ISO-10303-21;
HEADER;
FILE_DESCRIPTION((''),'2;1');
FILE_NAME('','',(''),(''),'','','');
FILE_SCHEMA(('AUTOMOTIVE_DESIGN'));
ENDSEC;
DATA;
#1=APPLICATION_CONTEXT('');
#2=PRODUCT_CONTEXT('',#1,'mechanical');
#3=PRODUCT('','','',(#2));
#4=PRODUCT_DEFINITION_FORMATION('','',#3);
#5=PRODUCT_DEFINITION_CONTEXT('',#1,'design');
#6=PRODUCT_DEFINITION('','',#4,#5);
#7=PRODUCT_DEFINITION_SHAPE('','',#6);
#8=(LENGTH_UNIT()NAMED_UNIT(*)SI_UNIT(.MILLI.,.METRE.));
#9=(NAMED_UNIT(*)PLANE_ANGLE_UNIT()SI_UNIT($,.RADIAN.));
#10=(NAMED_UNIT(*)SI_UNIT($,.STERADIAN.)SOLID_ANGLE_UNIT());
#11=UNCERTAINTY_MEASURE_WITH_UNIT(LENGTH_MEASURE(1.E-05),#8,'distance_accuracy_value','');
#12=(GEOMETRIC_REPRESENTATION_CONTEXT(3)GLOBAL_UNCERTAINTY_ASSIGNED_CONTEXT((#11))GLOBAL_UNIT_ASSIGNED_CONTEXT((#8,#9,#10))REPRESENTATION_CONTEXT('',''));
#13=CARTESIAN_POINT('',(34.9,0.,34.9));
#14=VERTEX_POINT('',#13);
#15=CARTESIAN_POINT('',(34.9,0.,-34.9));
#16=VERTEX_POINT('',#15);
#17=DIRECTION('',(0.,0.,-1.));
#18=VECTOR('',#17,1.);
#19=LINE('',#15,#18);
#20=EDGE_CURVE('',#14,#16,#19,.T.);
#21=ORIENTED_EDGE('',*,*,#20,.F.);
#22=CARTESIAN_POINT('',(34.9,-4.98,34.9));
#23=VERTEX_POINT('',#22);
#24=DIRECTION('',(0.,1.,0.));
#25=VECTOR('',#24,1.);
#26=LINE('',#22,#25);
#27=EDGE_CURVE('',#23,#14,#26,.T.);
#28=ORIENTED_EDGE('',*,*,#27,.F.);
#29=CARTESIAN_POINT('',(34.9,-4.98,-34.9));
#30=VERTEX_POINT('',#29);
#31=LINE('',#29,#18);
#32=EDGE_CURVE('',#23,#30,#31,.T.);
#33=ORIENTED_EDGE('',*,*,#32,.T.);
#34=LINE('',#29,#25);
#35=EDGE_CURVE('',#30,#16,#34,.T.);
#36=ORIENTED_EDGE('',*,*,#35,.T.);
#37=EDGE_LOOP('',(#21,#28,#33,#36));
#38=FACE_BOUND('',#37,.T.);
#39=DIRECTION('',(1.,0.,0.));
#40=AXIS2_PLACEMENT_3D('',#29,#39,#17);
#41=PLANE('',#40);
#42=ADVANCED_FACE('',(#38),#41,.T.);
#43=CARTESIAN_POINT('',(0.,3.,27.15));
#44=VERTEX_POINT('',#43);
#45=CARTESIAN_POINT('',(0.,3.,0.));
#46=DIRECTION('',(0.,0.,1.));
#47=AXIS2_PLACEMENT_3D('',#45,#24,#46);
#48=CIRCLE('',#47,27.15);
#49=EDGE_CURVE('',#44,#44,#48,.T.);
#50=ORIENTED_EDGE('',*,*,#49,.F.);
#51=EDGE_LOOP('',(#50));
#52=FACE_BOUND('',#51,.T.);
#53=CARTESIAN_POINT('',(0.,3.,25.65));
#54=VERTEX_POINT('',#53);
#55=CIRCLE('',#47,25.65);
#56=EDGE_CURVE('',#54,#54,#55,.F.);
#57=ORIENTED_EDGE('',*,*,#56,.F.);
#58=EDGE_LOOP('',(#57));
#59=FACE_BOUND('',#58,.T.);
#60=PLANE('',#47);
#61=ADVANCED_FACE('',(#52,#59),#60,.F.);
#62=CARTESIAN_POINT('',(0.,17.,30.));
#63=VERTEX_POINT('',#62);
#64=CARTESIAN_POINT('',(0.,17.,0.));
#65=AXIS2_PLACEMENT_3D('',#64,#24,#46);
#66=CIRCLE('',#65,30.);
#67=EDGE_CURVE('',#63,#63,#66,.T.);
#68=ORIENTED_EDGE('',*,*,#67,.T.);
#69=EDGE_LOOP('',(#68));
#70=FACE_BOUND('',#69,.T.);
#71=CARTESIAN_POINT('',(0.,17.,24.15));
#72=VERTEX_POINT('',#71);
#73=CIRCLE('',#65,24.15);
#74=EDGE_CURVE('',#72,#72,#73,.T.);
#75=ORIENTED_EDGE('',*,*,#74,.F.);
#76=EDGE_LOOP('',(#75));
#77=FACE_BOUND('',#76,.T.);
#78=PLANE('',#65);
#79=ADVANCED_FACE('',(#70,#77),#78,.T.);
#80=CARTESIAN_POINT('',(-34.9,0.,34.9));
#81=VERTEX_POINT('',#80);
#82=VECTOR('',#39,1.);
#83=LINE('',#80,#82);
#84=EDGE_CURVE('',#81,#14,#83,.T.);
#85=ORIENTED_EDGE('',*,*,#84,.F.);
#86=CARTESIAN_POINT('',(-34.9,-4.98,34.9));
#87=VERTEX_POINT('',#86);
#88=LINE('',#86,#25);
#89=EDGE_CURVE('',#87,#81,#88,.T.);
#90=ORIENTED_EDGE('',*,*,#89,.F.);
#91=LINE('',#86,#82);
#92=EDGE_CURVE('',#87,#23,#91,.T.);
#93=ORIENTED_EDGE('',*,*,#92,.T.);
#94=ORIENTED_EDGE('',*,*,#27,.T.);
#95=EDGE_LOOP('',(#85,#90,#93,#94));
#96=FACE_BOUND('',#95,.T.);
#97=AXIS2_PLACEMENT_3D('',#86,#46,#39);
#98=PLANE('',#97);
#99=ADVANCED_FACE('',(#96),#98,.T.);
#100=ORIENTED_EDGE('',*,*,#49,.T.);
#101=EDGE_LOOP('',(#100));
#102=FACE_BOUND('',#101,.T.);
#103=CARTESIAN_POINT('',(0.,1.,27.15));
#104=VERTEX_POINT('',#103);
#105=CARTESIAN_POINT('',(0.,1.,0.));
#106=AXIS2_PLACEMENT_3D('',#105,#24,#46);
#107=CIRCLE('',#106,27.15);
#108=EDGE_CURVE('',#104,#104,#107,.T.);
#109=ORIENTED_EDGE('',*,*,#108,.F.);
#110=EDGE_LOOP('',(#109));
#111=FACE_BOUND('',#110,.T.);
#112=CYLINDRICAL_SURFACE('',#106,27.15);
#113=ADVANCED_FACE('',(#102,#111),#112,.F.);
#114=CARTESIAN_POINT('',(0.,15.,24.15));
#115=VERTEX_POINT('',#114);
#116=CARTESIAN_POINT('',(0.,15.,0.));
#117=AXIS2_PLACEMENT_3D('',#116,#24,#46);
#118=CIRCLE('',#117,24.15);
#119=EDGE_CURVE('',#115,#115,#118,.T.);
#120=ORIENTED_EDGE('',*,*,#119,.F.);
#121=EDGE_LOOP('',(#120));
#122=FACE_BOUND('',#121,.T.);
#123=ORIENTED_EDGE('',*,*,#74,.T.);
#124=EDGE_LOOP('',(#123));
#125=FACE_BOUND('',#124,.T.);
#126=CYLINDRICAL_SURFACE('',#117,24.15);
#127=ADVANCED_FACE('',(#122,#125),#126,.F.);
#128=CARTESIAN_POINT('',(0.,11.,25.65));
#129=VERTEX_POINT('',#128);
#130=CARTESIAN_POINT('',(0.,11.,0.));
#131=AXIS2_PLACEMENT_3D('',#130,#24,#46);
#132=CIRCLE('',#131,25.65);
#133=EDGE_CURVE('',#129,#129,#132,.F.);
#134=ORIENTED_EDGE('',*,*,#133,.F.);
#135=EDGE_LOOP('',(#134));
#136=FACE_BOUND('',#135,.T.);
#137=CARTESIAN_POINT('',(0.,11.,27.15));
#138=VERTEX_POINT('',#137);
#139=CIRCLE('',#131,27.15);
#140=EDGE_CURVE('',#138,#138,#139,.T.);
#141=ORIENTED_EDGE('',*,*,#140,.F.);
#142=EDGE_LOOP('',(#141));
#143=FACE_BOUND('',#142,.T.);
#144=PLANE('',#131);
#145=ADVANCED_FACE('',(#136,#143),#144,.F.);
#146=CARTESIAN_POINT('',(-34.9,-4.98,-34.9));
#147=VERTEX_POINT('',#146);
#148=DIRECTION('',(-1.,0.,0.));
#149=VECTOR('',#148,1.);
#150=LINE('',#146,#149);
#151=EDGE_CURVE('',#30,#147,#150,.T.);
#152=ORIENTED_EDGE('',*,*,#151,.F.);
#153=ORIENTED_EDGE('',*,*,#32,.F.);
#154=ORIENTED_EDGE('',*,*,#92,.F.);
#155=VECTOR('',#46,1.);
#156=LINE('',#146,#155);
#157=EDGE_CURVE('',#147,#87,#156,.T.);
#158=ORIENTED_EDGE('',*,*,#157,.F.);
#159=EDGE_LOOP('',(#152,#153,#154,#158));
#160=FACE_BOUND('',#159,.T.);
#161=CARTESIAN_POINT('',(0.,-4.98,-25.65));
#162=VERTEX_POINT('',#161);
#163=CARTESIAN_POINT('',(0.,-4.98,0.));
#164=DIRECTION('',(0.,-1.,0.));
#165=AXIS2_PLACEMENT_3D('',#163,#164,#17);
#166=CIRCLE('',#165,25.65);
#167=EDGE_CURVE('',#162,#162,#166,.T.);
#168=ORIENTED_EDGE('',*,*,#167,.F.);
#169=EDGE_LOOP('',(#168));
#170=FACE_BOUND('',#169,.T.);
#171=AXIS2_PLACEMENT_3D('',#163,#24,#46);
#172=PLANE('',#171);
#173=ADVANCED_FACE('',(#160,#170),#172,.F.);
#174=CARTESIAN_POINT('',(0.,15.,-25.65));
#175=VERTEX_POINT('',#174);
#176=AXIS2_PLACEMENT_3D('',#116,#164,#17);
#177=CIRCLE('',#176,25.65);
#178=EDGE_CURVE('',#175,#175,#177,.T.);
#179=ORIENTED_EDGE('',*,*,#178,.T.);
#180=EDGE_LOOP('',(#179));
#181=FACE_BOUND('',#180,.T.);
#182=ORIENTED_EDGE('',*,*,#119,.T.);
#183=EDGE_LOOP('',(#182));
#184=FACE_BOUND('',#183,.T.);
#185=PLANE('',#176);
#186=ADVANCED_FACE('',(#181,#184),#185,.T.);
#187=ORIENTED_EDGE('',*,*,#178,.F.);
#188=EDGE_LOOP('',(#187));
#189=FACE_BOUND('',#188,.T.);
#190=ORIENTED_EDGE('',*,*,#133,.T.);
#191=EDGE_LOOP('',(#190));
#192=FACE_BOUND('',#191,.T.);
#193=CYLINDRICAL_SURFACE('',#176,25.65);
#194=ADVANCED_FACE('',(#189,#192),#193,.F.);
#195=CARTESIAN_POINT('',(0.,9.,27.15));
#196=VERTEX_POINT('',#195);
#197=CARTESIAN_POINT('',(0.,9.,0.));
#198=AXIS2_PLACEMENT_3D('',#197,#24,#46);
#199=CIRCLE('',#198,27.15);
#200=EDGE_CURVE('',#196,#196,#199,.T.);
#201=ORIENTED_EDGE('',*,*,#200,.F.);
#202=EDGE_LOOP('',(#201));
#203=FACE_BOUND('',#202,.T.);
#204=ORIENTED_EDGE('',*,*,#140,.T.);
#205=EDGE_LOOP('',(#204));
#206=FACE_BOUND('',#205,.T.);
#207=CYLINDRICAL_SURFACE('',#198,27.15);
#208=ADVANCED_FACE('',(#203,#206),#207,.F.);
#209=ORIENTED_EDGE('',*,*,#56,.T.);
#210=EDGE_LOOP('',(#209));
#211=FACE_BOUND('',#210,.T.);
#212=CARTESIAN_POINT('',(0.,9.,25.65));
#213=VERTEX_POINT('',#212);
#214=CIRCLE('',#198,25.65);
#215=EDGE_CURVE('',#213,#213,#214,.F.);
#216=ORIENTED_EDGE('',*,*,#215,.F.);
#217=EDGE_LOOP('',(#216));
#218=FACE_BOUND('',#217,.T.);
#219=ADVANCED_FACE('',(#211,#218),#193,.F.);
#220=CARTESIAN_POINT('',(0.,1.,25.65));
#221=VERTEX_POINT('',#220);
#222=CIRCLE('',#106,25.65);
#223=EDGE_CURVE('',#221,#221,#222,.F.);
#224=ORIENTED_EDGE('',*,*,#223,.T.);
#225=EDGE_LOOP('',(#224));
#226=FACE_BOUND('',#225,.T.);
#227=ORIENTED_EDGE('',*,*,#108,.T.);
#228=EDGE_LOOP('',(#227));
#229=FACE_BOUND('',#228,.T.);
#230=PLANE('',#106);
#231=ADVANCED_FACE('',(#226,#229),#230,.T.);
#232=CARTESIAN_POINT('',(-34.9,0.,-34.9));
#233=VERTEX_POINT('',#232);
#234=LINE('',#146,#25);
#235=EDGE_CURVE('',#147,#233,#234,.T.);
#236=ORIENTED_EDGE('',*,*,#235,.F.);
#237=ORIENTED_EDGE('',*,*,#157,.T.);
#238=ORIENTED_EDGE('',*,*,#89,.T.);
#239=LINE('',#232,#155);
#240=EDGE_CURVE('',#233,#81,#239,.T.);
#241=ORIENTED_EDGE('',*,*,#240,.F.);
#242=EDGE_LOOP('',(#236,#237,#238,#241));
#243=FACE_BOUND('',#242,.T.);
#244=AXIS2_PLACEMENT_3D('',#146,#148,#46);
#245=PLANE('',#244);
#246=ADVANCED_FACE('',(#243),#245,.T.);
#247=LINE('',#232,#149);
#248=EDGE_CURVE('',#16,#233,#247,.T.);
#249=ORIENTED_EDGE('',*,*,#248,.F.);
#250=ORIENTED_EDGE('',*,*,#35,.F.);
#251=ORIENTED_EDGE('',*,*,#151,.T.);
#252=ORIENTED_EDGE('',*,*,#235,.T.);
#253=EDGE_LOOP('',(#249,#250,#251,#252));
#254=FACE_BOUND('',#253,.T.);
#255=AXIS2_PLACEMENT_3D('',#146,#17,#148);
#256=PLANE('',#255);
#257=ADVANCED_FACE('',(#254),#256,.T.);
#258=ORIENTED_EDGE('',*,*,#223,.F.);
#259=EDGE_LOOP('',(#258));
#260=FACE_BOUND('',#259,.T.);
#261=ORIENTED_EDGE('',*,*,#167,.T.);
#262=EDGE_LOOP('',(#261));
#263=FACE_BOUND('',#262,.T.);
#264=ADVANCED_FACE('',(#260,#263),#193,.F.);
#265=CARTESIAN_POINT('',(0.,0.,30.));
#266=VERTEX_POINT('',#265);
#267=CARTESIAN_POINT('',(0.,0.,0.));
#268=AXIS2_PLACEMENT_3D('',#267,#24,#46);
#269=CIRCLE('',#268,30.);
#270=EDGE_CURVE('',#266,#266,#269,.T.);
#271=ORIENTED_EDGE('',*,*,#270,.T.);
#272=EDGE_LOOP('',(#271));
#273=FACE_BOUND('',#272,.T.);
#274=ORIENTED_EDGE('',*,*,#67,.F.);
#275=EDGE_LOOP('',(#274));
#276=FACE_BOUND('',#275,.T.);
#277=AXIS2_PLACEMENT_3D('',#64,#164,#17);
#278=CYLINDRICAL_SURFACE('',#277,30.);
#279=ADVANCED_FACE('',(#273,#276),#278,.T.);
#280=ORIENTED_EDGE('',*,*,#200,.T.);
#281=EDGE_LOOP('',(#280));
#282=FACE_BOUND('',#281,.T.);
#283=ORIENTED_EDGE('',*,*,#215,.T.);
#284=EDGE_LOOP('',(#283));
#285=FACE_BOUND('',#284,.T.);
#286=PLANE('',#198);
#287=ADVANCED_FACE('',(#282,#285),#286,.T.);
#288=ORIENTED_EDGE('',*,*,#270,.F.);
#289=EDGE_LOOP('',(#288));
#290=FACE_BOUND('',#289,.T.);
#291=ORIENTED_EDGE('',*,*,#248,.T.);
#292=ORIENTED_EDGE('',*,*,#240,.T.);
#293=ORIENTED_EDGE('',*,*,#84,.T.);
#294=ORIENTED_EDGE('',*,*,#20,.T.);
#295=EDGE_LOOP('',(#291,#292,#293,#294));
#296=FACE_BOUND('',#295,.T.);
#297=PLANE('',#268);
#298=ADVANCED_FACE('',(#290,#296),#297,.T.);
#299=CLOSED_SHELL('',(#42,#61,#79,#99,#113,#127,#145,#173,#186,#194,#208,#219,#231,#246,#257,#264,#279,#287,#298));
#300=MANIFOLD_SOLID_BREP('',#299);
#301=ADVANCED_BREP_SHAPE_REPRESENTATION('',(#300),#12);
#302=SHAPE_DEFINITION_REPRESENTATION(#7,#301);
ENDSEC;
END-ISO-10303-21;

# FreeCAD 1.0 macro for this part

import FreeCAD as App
import Part
import Sketcher

V = App.Vector
Q = App.Units.Quantity

doc = App.newDocument("Part")
body = doc.addObject("PartDesign::Body", "Body")

# Sketch on XZ plane
sketch1 = body.newObject("Sketcher::SketchObject", "Sketch")
sketch1.AttachmentSupport = (doc.getObject("XZ_Plane"), [""])
sketch1.MapMode = "FlatFace"
sketch1.addGeometry(Part.LineSegment(V(-35, -35, 0), V(-35, 35, 0)), False)
sketch1.addGeometry(Part.LineSegment(V(-35, 35, 0), V(35, 35, 0)), False)
sketch1.addGeometry(Part.LineSegment(V(35, 35, 0), V(35, -35, 0)), False)
sketch1.addGeometry(Part.LineSegment(V(35, -35, 0), V(-35, -35, 0)), False)
sketch1.addConstraint(Sketcher.Constraint("Coincident", 0, 2, 1, 1))
sketch1.addConstraint(Sketcher.Constraint("Coincident", 1, 2, 2, 1))
sketch1.addConstraint(Sketcher.Constraint("Coincident", 2, 2, 3, 1))
sketch1.addConstraint(Sketcher.Constraint("Coincident", 3, 2, 0, 1))
sketch1.addConstraint(Sketcher.Constraint("Vertical", 0))
sketch1.addConstraint(Sketcher.Constraint("Horizontal", 1))
sketch1.addConstraint(Sketcher.Constraint("Vertical", 2))
sketch1.addConstraint(Sketcher.Constraint("Horizontal", 3))
sketch1.addConstraint(Sketcher.Constraint("Symmetric", 0, 2, 2, 2, -1, 1))
sketch1.addConstraint(Sketcher.Constraint("Equal", 3, 0))
sketch1.addConstraint(Sketcher.Constraint("DistanceX", 1, 1, 1, 2, Q("69.8 mm")))
pad1 = body.newObject("PartDesign::Pad", "Pad")
pad1.Profile = sketch1
pad1.Length = 4.98

# Sketch on XZ plane
sketch2 = body.newObject("Sketcher::SketchObject", "Sketch001")
sketch2.AttachmentSupport = (doc.getObject("XZ_Plane"), [""])
sketch2.MapMode = "FlatFace"
sketch2.addGeometry(Part.Circle(V(0, 0, 0), V(0, 0, 1), 30), False)
sketch2.addConstraint(Sketcher.Constraint("Coincident", 0, 3, -1, 1))
sketch2.addConstraint(Sketcher.Constraint("Diameter", 0, Q("60 mm")))
pad2 = body.newObject("PartDesign::Pad", "Pad001")
pad2.Profile = sketch2
pad2.Length = 17
pad2.Reversed = True

# Sketch on XZ plane
sketch3 = body.newObject("Sketcher::SketchObject", "Sketch002")
sketch3.AttachmentSupport = (doc.getObject("XZ_Plane"), [""])
sketch3.MapMode = "FlatFace"
sketch3.AttachmentOffset = App.Placement(V(0, 0, 4.98), App.Rotation())
sketch3.addGeometry(Part.Circle(V(0, 0, 0), V(0, 0, 1), 26), False)
sketch3.addConstraint(Sketcher.Constraint("Coincident", 0, 3, -1, 1))
sketch3.addConstraint(Sketcher.Constraint("Diameter", 0, Q("51.3 mm")))
pocket1 = body.newObject("PartDesign::Pocket", "Pocket")
pocket1.Profile = sketch3
pocket1.Length = 19.98

# Sketch on XZ plane
sketch4 = body.newObject("Sketcher::SketchObject", "Sketch003")
sketch4.AttachmentSupport = (doc.getObject("XZ_Plane"), [""])
sketch4.MapMode = "FlatFace"
sketch4.AttachmentOffset = App.Placement(V(0, 0, -17), App.Rotation())
sketch4.addGeometry(Part.Circle(V(0, 0, 0), V(0, 0, 1), 24), False)
sketch4.addConstraint(Sketcher.Constraint("Coincident", 0, 3, -1, 1))
sketch4.addConstraint(Sketcher.Constraint("Diameter", 0, Q("48.3 mm")))
pocket2 = body.newObject("PartDesign::Pocket", "Pocket001")
pocket2.Profile = sketch4
pocket2.Length = 2
pocket2.Reversed = True

# Sketch on XZ plane
sketch5 = body.newObject("Sketcher::SketchObject", "Sketch004")
sketch5.AttachmentSupport = (doc.getObject("XZ_Plane"), [""])
sketch5.MapMode = "FlatFace"
sketch5.AttachmentOffset = App.Placement(V(0, 0, -11), App.Rotation())
sketch5.addGeometry(Part.Circle(V(0, 0, 0), V(0, 0, 1), 27), False)
sketch5.addConstraint(Sketcher.Constraint("Coincident", 0, 3, -1, 1))
sketch5.addConstraint(Sketcher.Constraint("Diameter", 0, Q("54.3 mm")))
pocket3 = body.newObject("PartDesign::Pocket", "Pocket002")
pocket3.Profile = sketch5
pocket3.Length = 2
pocket3.Reversed = True

# Sketch on XZ plane
sketch6 = body.newObject("Sketcher::SketchObject", "Sketch005")
sketch6.AttachmentSupport = (doc.getObject("XZ_Plane"), [""])
sketch6.MapMode = "FlatFace"
sketch6.AttachmentOffset = App.Placement(V(0, 0, -3), App.Rotation())
sketch6.addGeometry(Part.Circle(V(0, 0, 0), V(0, 0, 1), 27), False)
sketch6.addConstraint(Sketcher.Constraint("Coincident", 0, 3, -1, 1))
sketch6.addConstraint(Sketcher.Constraint("Diameter", 0, Q("54.3 mm")))
pocket4 = body.newObject("PartDesign::Pocket", "Pocket003")
pocket4.Profile = sketch6
pocket4.Length = 2
pocket4.Reversed = True

doc.recompute()
